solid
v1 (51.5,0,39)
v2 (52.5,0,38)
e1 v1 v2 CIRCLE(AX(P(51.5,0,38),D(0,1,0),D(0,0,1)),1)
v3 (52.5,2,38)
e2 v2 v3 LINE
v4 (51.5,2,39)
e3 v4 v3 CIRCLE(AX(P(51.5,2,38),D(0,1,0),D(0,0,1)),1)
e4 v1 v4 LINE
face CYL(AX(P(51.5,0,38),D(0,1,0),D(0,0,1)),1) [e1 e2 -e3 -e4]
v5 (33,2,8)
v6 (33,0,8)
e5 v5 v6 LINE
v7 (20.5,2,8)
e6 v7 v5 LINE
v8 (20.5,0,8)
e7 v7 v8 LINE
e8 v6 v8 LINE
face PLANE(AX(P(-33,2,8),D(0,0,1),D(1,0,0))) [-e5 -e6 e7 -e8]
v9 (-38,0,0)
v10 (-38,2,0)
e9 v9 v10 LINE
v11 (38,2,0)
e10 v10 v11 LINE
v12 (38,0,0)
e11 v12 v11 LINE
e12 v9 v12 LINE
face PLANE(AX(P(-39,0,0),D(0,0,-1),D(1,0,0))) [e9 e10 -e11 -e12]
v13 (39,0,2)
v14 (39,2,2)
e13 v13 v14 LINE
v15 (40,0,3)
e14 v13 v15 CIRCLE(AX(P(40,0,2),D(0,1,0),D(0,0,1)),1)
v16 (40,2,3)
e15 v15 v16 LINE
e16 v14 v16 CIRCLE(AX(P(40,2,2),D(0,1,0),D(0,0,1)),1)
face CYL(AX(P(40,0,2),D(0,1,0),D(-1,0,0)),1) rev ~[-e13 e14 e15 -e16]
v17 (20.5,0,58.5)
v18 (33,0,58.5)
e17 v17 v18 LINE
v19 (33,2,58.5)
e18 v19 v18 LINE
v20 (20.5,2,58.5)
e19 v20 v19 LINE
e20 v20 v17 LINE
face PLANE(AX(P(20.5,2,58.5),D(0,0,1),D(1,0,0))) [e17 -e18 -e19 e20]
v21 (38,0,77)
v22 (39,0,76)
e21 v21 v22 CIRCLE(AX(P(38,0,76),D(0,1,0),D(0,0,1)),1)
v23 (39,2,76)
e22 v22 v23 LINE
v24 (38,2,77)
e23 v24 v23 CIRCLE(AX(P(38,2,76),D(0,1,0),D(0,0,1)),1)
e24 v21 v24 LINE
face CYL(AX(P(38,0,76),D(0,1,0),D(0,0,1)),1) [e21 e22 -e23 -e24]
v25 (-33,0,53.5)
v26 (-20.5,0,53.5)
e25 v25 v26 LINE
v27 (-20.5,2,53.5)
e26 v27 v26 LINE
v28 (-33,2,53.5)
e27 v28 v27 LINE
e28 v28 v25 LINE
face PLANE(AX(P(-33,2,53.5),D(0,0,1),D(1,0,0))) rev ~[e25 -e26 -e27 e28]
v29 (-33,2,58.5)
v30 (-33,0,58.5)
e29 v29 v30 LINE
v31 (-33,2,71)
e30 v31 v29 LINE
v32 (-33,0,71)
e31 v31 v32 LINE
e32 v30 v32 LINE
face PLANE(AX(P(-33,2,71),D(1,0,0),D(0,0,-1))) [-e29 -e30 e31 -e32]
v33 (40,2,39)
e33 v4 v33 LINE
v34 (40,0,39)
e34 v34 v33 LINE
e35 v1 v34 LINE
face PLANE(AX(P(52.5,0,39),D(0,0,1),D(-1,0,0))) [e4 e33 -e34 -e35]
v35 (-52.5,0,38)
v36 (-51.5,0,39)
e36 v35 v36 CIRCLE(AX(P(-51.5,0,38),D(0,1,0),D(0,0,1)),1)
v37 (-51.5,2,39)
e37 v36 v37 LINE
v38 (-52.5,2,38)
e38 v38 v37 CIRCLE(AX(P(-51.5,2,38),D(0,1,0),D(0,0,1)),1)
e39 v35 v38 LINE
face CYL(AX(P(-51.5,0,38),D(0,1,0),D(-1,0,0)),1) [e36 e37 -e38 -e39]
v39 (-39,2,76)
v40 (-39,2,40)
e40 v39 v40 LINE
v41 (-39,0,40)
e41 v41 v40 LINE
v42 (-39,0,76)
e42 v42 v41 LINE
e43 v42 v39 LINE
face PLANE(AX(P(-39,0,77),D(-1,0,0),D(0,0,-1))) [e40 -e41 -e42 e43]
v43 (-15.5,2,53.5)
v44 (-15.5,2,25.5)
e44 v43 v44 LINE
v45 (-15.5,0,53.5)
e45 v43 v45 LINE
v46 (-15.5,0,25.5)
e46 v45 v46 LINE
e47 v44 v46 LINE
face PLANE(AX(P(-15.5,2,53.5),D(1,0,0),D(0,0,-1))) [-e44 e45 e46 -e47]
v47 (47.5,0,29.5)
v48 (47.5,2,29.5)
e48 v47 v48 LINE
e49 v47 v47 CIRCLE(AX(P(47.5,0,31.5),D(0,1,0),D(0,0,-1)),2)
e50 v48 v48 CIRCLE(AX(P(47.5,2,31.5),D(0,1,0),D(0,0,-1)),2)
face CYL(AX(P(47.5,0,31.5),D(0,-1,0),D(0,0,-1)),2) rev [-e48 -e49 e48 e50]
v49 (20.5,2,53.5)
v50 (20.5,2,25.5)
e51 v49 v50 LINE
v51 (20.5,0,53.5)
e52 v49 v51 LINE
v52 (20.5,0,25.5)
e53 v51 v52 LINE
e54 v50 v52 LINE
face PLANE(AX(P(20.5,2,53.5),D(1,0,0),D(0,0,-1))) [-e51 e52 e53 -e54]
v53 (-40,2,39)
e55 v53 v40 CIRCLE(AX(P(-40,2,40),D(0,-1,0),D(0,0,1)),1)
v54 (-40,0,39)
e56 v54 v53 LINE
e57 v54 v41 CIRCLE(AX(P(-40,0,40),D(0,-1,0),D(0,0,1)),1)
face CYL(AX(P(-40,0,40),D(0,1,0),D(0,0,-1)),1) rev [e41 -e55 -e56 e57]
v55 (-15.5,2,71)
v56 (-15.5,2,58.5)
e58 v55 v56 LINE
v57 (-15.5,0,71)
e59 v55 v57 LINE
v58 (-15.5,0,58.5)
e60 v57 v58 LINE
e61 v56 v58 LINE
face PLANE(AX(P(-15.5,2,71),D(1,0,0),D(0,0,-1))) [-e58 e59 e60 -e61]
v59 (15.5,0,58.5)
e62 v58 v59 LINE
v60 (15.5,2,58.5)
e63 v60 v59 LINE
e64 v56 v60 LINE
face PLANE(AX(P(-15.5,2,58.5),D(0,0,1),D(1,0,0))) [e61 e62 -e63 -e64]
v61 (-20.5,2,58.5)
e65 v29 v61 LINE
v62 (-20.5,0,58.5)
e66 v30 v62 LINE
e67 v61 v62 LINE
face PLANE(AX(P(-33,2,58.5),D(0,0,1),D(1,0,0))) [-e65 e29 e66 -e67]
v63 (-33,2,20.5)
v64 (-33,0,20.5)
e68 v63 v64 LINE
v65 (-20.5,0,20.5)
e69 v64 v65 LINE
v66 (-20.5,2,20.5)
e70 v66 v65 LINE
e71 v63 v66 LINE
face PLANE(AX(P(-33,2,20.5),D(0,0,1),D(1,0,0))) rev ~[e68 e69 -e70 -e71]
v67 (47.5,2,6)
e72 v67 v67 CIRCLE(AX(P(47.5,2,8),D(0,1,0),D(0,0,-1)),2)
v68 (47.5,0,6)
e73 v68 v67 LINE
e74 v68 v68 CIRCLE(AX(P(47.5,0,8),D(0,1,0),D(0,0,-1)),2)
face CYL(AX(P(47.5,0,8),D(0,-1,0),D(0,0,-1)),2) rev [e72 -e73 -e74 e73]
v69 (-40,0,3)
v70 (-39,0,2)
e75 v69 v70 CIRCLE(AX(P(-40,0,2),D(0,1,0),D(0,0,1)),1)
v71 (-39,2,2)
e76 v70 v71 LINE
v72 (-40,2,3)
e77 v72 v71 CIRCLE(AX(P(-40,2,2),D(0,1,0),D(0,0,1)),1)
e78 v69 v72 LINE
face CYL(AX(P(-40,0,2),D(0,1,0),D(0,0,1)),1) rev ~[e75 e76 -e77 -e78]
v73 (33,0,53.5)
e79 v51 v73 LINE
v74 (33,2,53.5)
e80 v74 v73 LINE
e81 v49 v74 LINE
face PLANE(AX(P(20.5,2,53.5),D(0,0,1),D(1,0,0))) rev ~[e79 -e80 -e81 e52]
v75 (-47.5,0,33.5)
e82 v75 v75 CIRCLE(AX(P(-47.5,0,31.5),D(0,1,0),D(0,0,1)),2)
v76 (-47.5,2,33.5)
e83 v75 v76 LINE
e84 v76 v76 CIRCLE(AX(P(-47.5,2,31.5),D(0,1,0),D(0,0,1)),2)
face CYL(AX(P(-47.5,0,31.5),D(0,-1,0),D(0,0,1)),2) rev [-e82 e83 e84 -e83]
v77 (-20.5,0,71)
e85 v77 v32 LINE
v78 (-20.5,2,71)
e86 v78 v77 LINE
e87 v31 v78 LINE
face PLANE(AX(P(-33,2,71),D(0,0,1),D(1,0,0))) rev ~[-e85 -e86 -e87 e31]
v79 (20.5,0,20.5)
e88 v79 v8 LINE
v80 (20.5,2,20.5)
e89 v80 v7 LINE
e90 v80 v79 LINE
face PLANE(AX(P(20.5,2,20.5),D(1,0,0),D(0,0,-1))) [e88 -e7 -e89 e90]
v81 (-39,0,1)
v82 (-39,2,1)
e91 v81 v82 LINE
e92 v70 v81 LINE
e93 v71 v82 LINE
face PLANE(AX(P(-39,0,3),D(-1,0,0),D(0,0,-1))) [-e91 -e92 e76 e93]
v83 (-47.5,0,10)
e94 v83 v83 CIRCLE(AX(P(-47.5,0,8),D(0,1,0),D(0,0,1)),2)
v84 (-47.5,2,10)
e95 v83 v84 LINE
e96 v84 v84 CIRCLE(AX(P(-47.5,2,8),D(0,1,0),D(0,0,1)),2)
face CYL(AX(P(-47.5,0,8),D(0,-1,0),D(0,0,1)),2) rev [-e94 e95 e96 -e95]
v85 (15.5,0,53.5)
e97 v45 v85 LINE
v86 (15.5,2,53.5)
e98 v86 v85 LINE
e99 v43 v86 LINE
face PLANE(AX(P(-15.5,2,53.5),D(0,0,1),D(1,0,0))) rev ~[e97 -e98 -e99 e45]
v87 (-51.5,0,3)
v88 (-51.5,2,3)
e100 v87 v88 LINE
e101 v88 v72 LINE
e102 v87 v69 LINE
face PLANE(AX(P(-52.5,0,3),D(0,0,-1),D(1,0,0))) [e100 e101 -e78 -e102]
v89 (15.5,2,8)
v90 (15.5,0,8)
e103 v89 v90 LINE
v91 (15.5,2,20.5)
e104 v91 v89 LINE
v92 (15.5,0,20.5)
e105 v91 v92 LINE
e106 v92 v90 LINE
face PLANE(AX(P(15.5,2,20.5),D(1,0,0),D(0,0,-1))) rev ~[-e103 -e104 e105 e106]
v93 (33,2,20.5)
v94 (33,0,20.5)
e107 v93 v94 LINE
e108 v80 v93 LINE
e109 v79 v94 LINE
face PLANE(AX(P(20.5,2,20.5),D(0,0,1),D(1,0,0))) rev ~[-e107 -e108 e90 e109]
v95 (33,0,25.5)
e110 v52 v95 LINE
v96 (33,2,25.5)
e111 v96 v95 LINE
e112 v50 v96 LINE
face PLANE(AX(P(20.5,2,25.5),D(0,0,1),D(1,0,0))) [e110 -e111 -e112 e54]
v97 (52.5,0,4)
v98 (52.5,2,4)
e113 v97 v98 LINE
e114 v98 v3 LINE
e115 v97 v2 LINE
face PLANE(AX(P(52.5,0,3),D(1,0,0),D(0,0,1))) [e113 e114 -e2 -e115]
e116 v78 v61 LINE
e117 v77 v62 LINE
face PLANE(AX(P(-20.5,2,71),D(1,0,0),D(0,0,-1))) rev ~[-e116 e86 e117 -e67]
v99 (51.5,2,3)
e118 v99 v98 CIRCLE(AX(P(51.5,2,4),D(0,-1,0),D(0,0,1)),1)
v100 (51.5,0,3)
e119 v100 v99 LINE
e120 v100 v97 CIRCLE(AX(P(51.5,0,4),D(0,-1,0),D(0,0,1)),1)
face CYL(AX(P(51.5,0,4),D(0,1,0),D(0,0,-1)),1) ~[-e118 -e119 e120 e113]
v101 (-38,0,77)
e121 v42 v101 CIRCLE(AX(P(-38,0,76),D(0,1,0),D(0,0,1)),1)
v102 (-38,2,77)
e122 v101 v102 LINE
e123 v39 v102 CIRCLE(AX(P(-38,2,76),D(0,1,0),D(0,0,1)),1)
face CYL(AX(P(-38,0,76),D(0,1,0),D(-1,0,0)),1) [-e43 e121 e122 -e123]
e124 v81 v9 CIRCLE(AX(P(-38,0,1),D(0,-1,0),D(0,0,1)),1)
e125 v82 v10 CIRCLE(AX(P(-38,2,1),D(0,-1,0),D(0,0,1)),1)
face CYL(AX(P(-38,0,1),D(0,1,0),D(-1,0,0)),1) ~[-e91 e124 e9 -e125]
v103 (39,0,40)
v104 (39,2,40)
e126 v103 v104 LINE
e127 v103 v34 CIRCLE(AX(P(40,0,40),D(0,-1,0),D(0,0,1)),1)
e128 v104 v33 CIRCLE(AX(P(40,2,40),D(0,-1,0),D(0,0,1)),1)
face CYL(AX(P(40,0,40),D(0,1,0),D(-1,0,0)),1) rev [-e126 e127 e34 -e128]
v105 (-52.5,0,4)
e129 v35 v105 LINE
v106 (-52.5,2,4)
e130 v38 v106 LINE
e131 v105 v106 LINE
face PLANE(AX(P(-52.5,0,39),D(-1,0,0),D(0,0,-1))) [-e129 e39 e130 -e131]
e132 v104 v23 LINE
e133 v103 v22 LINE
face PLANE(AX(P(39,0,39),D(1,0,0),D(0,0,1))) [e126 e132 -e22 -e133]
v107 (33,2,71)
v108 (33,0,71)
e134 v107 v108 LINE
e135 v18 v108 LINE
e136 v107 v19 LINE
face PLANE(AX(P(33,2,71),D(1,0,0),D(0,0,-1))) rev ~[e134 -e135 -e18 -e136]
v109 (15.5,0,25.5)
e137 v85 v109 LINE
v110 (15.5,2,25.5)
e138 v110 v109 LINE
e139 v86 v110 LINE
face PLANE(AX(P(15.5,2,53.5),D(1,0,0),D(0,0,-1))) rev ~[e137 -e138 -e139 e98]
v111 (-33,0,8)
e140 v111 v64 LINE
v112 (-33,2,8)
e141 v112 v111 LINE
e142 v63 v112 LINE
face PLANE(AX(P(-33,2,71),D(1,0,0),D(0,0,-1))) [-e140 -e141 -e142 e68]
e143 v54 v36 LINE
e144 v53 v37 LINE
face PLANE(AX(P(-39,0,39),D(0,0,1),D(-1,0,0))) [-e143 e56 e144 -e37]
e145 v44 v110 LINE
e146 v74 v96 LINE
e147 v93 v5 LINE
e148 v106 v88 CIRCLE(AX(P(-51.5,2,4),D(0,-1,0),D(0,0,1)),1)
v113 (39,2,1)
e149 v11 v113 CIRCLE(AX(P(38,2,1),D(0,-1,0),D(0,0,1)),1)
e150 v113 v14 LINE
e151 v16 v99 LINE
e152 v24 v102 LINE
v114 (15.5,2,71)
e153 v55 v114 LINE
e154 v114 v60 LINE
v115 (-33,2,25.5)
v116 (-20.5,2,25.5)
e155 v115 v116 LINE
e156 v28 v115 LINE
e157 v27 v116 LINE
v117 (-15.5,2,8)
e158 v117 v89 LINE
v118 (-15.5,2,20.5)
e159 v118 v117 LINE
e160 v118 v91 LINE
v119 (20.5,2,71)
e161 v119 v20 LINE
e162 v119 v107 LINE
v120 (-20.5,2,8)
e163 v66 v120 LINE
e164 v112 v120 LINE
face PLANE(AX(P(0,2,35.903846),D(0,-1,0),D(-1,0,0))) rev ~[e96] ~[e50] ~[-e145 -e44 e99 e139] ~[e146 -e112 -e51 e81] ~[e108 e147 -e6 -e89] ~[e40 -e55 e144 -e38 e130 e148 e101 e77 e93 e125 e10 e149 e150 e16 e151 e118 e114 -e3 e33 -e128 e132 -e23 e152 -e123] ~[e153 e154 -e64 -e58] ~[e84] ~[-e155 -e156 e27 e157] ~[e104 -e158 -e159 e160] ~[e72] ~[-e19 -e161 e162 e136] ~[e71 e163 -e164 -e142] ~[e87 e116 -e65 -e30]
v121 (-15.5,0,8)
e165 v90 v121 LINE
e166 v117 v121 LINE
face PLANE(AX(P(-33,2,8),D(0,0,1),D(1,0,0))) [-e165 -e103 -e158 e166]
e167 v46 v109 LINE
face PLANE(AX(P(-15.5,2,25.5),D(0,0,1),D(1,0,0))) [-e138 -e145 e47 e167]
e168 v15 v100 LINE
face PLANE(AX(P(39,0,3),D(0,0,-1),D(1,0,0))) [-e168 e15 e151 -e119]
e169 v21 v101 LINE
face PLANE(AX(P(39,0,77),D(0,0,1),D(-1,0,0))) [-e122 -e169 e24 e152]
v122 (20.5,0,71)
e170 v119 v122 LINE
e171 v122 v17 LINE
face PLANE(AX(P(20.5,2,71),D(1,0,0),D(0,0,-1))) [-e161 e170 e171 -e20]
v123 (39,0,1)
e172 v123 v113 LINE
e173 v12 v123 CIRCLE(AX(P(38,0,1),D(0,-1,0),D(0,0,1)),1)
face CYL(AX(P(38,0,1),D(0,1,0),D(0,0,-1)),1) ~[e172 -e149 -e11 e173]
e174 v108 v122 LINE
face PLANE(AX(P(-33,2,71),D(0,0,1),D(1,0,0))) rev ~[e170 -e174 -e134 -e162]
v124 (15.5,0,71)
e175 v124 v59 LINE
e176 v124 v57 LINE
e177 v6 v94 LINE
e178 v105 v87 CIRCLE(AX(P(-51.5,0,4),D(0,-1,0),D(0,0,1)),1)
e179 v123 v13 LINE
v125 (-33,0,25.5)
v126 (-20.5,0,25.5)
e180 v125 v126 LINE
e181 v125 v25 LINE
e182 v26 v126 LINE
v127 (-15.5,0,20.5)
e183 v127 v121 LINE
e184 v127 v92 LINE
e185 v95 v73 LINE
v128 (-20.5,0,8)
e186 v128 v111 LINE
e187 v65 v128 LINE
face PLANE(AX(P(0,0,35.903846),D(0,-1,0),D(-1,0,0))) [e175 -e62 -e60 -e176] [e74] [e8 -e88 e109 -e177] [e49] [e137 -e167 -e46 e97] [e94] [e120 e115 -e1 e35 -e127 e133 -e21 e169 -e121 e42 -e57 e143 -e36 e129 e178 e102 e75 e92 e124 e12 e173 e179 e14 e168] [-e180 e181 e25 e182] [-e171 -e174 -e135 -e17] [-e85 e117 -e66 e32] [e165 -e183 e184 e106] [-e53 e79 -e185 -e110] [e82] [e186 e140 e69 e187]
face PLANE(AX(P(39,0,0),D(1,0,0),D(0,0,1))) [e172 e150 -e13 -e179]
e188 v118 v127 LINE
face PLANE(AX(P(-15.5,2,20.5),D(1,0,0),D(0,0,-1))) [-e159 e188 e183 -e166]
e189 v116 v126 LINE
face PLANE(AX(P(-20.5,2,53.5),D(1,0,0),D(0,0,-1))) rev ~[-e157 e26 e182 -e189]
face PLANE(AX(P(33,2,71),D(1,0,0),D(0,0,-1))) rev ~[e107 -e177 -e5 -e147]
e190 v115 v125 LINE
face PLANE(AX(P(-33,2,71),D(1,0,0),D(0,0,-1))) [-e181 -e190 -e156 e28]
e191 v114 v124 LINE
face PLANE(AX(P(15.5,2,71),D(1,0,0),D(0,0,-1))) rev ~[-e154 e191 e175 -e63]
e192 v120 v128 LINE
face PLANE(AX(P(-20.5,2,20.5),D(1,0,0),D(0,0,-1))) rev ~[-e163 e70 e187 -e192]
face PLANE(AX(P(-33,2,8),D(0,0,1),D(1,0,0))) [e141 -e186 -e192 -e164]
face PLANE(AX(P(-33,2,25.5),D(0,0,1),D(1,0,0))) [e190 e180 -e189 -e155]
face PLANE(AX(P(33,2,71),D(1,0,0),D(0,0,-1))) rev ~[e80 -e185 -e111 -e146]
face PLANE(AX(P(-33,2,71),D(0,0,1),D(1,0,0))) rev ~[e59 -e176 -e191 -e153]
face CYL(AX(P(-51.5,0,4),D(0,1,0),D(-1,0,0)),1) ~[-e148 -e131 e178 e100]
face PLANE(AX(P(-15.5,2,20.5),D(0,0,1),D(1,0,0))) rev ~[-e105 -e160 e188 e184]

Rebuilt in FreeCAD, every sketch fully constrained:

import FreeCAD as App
import Part
import Sketcher
from FreeCAD import Vector


def edges_at(feature, points):
    """Names of the edges that pass closest to the given points."""
    edges = feature.Shape.Edges
    near = lambda p: min(range(len(edges)), key=lambda i: edges[i].distToShape(Part.Vertex(*p))[0])
    return sorted({f"Edge{near(p) + 1}" for p in points})


def add_polygon(sketch, points):
    """Adds a closed chain of lines whose ends are joined by coincident constraints."""
    first, n = sketch.GeometryCount, len(points)
    for a, b in zip(points, points[1:] + points[:1]):
        sketch.addGeometry(Part.LineSegment(App.Vector(*a, 0), App.Vector(*b, 0)), False)
    for i in range(n):
        sketch.addConstraint(Sketcher.Constraint("Coincident", first + i, 2, first + (i + 1) % n, 1))

doc = App.newDocument("Part")
body = doc.addObject("PartDesign::Body", "Body")

# Sketch on XZ plane
sketch1 = body.newObject("Sketcher::SketchObject", "Sketch")
sketch1.AttachmentSupport = (doc.getObject("XZ_Plane"), [""])
sketch1.MapMode = "FlatFace"
add_polygon(sketch1, [(-52.5, 3), (-52.5, 39), (-39, 39), (-39, 77), (39, 77), (39, 39), (52.5, 39), (52.5, 3), (39, 3), (39, 0), (-39, 0), (-39, 3)])  # lines 0-11
sketch1.addGeometry(Part.Circle(Vector(47.5, 31.5, 0), Vector(0, 0, 1), 2), False)  # 12
sketch1.addGeometry(Part.Circle(Vector(-47.5, 31.5, 0), Vector(0, 0, 1), 2), False)  # 13
sketch1.addGeometry(Part.Circle(Vector(47.5, 8, 0), Vector(0, 0, 1), 2), False)  # 14
sketch1.addGeometry(Part.Circle(Vector(-47.5, 8, 0), Vector(0, 0, 1), 2), False)  # 15
sketch1.addConstraint([
    Sketcher.Constraint("Vertical", 0),
    Sketcher.Constraint("Horizontal", 1),
    Sketcher.Constraint("Vertical", 2),
    Sketcher.Constraint("Horizontal", 3),
    Sketcher.Constraint("Vertical", 4),
    Sketcher.Constraint("Horizontal", 5),
    Sketcher.Constraint("Vertical", 6),
    Sketcher.Constraint("Horizontal", 7),
    Sketcher.Constraint("Vertical", 8),
    Sketcher.Constraint("Horizontal", 9),
    Sketcher.Constraint("Vertical", 10),
    Sketcher.Constraint("Horizontal", 11),
    Sketcher.Constraint("Equal", 12, 13),
    Sketcher.Constraint("Equal", 13, 14),
    Sketcher.Constraint("Equal", 14, 15),
    Sketcher.Constraint("Symmetric", 8, 2, 9, 2, -1, 1),
    Sketcher.Constraint("Symmetric", 12, 3, 13, 3, -2),
    Sketcher.Constraint("Symmetric", 14, 3, 15, 3, -2),
    Sketcher.Constraint("Symmetric", 1, 2, 4, 2, -2),
    Sketcher.Constraint("Symmetric", 6, 2, 11, 2, -2),
    Sketcher.Constraint("Vertical", 12, 3, 14, 3),
    Sketcher.Constraint("Vertical", 4, 2, 7, 2),
    Sketcher.Constraint("Diameter", 12, 4.0),
    Sketcher.Constraint("DistanceX", 3, 1, 3, 2, 78.0),
    Sketcher.Constraint("DistanceY", 0, 1, 0, 2, 36.0),
    Sketcher.Constraint("DistanceY", 2, 1, 2, 2, 38.0),
    Sketcher.Constraint("DistanceY", 8, 2, 8, 1, 3.0),
    Sketcher.Constraint("DistanceX", 1, 1, 1, 2, 13.5),
    Sketcher.Constraint("DistanceY", -1, 1, 14, 3, 8.0),
    Sketcher.Constraint("DistanceX", 13, 3, 12, 3, 95.0),
    Sketcher.Constraint("DistanceY", -1, 1, 12, 3, 31.5),
])
pad1 = body.newObject("PartDesign::Pad", "Pad")
pad1.Profile = sketch1
pad1.Length = 2
pad1.Reversed = True

# Sketch on XZ plane
sketch2 = body.newObject("Sketcher::SketchObject", "Sketch001")
sketch2.AttachmentSupport = (doc.getObject("XZ_Plane"), [""])
sketch2.MapMode = "FlatFace"
sketch2.AttachmentOffset = App.Placement(Vector(0, 0, -2), App.Rotation())
add_polygon(sketch2, [(-33, 8), (-33, 71), (33, 71), (33, 8)])  # lines 0-3
sketch2.addConstraint([
    Sketcher.Constraint("Vertical", 0),
    Sketcher.Constraint("Horizontal", 1),
    Sketcher.Constraint("Vertical", 2),
    Sketcher.Constraint("Horizontal", 3),
    Sketcher.Constraint("DistanceX", 1, 1, 1, 2, 66.0),
    Sketcher.Constraint("DistanceY", 0, 1, 0, 2, 63.0),
    Sketcher.Constraint("DistanceX", 0, 2, -1, 1, 33.0),
    Sketcher.Constraint("DistanceY", -1, 1, 0, 2, 71.0),
])
pocket1 = body.newObject("PartDesign::Pocket", "Pocket")
pocket1.Profile = sketch2
pocket1.Type = "ThroughAll"
pocket1.Reversed = True
doc.recompute()

fillet = body.newObject("PartDesign::Fillet", "Fillet")
fillet.Base = (pocket1, edges_at(pocket1, [
    (-52.5, 1, 39),
    (-52.5, 1, 3),
    (-39, 1, 3),
    (-39, 1, 0),
    (39, 1, 0),
    (39, 1, 3),
    (52.5, 1, 3),
    (52.5, 1, 39),
    (39, 1, 39),
    (39, 1, 77),
    (-39, 1, 77),
    (-39, 1, 39),
]))
fillet.Radius = 1

# Sketch on XZ plane
sketch3 = body.newObject("Sketcher::SketchObject", "Sketch002")
sketch3.AttachmentSupport = (doc.getObject("XZ_Plane"), [""])
sketch3.MapMode = "FlatFace"
sketch3.AttachmentOffset = App.Placement(Vector(0, 0, -2), App.Rotation())
add_polygon(sketch3, [(-33, 20), (-33, 26), (-20, 26), (-20, 54), (-33, 54), (-33, 58), (-20, 58), (-20, 71), (-16, 71), (-16, 58), (16, 58), (16, 71), (20, 71), (20, 58), (33, 58), (33, 54), (20, 54), (20, 26), (33, 26), (33, 20), (20, 20), (20, 8), (16, 8), (16, 20), (-16, 20), (-16, 8), (-20, 8), (-20, 20)])  # lines 0-27
add_polygon(sketch3, [(-16, 26), (16, 26), (16, 54), (-16, 54)])  # lines 28-31
sketch3.addConstraint([
    Sketcher.Constraint("Vertical", 0),
    Sketcher.Constraint("Horizontal", 1),
    Sketcher.Constraint("Vertical", 2),
    Sketcher.Constraint("Horizontal", 3),
    Sketcher.Constraint("Vertical", 4),
    Sketcher.Constraint("Horizontal", 5),
    Sketcher.Constraint("Vertical", 6),
    Sketcher.Constraint("Horizontal", 7),
    Sketcher.Constraint("Vertical", 8),
    Sketcher.Constraint("Horizontal", 9),
    Sketcher.Constraint("Vertical", 10),
    Sketcher.Constraint("Horizontal", 11),
    Sketcher.Constraint("Vertical", 12),
    Sketcher.Constraint("Horizontal", 13),
    Sketcher.Constraint("Vertical", 14),
    Sketcher.Constraint("Horizontal", 15),
    Sketcher.Constraint("Vertical", 16),
    Sketcher.Constraint("Horizontal", 17),
    Sketcher.Constraint("Vertical", 18),
    Sketcher.Constraint("Horizontal", 19),
    Sketcher.Constraint("Vertical", 20),
    Sketcher.Constraint("Horizontal", 21),
    Sketcher.Constraint("Vertical", 22),
    Sketcher.Constraint("Horizontal", 23),
    Sketcher.Constraint("Vertical", 24),
    Sketcher.Constraint("Horizontal", 25),
    Sketcher.Constraint("Vertical", 26),
    Sketcher.Constraint("Horizontal", 27),
    Sketcher.Constraint("Horizontal", 28),
    Sketcher.Constraint("Vertical", 29),
    Sketcher.Constraint("Horizontal", 30),
    Sketcher.Constraint("Vertical", 31),
    Sketcher.Constraint("Symmetric", 7, 2, 10, 2, -2),
    Sketcher.Constraint("Symmetric", 5, 2, 12, 2, -2),
    Sketcher.Constraint("Symmetric", 3, 2, 14, 2, -2),
    Sketcher.Constraint("Symmetric", 1, 2, 16, 2, -2),
    Sketcher.Constraint("Symmetric", 21, 2, 24, 2, -2),
    Sketcher.Constraint("Symmetric", 19, 2, 26, 2, -2),
    Sketcher.Constraint("Horizontal", 5, 2, 8, 2),
    Sketcher.Constraint("Horizontal", 19, 2, 22, 2),
    Sketcher.Constraint("Horizontal", 17, 2, 28, 2),
    Sketcher.Constraint("Horizontal", 15, 2, 29, 2),
    Sketcher.Constraint("Vertical", 0, 2, 3, 2),
    Sketcher.Constraint("Vertical", 2, 2, 5, 2),
    Sketcher.Constraint("Vertical", 14, 2, 17, 2),
    Sketcher.Constraint("Vertical", 16, 2, 19, 2),
    Sketcher.Constraint("Vertical", 10, 2, 21, 2),
    Sketcher.Constraint("Vertical", 22, 2, 28, 2),
    Sketcher.Constraint("Vertical", 24, 2, 30, 2),
    Sketcher.Constraint("Equal", 25, 0),
    Sketcher.Constraint("Equal", 0, 4),
    Sketcher.Constraint("Equal", 27, 6),
    Sketcher.Constraint("Equal", 12, 20),
    Sketcher.Constraint("DistanceX", 7, 1, 7, 2, 5.0),
    Sketcher.Constraint("DistanceX", 9, 1, 9, 2, 31.0),
    Sketcher.Constraint("DistanceY", 2, 1, 2, 2, 28.0),
    Sketcher.Constraint("DistanceX", 1, 1, 1, 2, 12.5),
    Sketcher.Constraint("DistanceY", -1, 1, 6, 2, 71.0),
])
pad2 = body.newObject("PartDesign::Pad", "Pad001")
pad2.Profile = sketch3
pad2.Length = 2

doc.recompute()
